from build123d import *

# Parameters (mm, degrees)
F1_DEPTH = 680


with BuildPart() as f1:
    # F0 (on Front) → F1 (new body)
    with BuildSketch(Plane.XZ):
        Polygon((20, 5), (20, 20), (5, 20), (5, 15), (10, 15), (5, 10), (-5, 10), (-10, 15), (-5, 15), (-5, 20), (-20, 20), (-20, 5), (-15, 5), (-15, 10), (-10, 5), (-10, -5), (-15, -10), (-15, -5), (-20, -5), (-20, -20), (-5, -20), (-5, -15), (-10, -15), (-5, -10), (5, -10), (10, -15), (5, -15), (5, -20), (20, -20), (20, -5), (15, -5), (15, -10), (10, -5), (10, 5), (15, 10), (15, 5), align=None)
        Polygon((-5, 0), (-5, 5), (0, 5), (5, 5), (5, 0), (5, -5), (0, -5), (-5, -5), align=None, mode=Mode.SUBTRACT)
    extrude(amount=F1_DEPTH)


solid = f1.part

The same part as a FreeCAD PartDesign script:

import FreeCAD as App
import Part
import Sketcher
from FreeCAD import Vector


def add_polygon(sketch, points):
    """Adds a closed chain of lines whose ends are joined by coincident constraints."""
    first, n = sketch.GeometryCount, len(points)
    for a, b in zip(points, points[1:] + points[:1]):
        sketch.addGeometry(Part.LineSegment(App.Vector(*a, 0), App.Vector(*b, 0)), False)
    for i in range(n):
        sketch.addConstraint(Sketcher.Constraint("Coincident", first + i, 2, first + (i + 1) % n, 1))

doc = App.newDocument("Part")
params = doc.addObject("Spreadsheet::Sheet", "Params")
for row, (alias, value) in enumerate([
    ("sketch1_width", "15 mm"),
    ("sketch1_width2", "10 mm"),
    ("pad1_length", "680 mm"),
], start=1):
    params.set(f"A{row}", alias)
    params.set(f"B{row}", "=" + value)
    params.setAlias(f"B{row}", alias)

body = doc.addObject("PartDesign::Body", "Body")

# Sketch on XZ plane
sketch1 = body.newObject("Sketcher::SketchObject", "Sketch")
sketch1.AttachmentSupport = (doc.getObject("XZ_Plane"), [""])
sketch1.MapMode = "FlatFace"
add_polygon(sketch1, [(20, 5), (20, 20), (5, 20), (5, 15), (10, 15), (5, 10), (-5, 10), (-10, 15), (-5, 15), (-5, 20), (-20, 20), (-20, 5), (-15, 5), (-15, 10), (-10, 5), (-10, -5), (-15, -10), (-15, -5), (-20, -5), (-20, -20), (-5, -20), (-5, -15), (-10, -15), (-5, -10), (5, -10), (10, -15), (5, -15), (5, -20), (20, -20), (20, -5), (15, -5), (15, -10), (10, -5), (10, 5), (15, 10), (15, 5)])  # lines 0-35
add_polygon(sketch1, [(-5, -5), (-5, 5), (5, 5), (5, -5)])  # lines 36-39
sketch1.addConstraint([
    Sketcher.Constraint("Vertical", 0),
    Sketcher.Constraint("Horizontal", 1),
    Sketcher.Constraint("Vertical", 2),
    Sketcher.Constraint("Horizontal", 3),
    Sketcher.Constraint("Horizontal", 5),
    Sketcher.Constraint("Horizontal", 7),
    Sketcher.Constraint("Vertical", 8),
    Sketcher.Constraint("Horizontal", 9),
    Sketcher.Constraint("Vertical", 10),
    Sketcher.Constraint("Horizontal", 11),
    Sketcher.Constraint("Vertical", 12),
    Sketcher.Constraint("Vertical", 14),
    Sketcher.Constraint("Vertical", 16),
    Sketcher.Constraint("Horizontal", 17),
    Sketcher.Constraint("Vertical", 18),
    Sketcher.Constraint("Horizontal", 19),
    Sketcher.Constraint("Vertical", 20),
    Sketcher.Constraint("Horizontal", 21),
    Sketcher.Constraint("Horizontal", 23),
    Sketcher.Constraint("Horizontal", 25),
    Sketcher.Constraint("Vertical", 26),
    Sketcher.Constraint("Horizontal", 27),
    Sketcher.Constraint("Vertical", 28),
    Sketcher.Constraint("Horizontal", 29),
    Sketcher.Constraint("Vertical", 30),
    Sketcher.Constraint("Vertical", 32),
    Sketcher.Constraint("Vertical", 34),
    Sketcher.Constraint("Horizontal", 35),
    Sketcher.Constraint("Vertical", 36),
    Sketcher.Constraint("Horizontal", 37),
    Sketcher.Constraint("Vertical", 38),
    Sketcher.Constraint("Horizontal", 39),
    Sketcher.Constraint("Symmetric", 0, 2, 18, 2, -1, 1),
    Sketcher.Constraint("Symmetric", 2, 2, 20, 2, -1, 1),
    Sketcher.Constraint("Symmetric", 4, 2, 22, 2, -1, 1),
    Sketcher.Constraint("Symmetric", 6, 2, 24, 2, -1, 1),
    Sketcher.Constraint("Symmetric", 8, 2, 26, 2, -1, 1),
    Sketcher.Constraint("Symmetric", 10, 2, 28, 2, -1, 1),
    Sketcher.Constraint("Symmetric", 12, 2, 30, 2, -1, 1),
    Sketcher.Constraint("Symmetric", 13, 2, 31, 2, -1, 1),
    Sketcher.Constraint("Symmetric", 15, 2, 33, 2, -1, 1),
    Sketcher.Constraint("Symmetric", 36, 2, 38, 2, -1, 1),
    Sketcher.Constraint("Symmetric", 3, 2, 6, 2, -2),
    Sketcher.Constraint("Symmetric", 1, 2, 8, 2, -2),
    Sketcher.Constraint("Symmetric", 17, 2, 28, 2, -2),
    Sketcher.Constraint("Symmetric", 15, 2, 30, 2, -2),
    Sketcher.Constraint("Perpendicular", 4, 6),
    Sketcher.Constraint("Parallel", 6, 13),
    Sketcher.Constraint("Perpendicular", 13, 15),
    Sketcher.Constraint("Parallel", 15, 22),
    Sketcher.Constraint("Perpendicular", 22, 24),
    Sketcher.Constraint("Perpendicular", 31, 33),
    Sketcher.Constraint("Horizontal", 5, 2, 12, 2),
    Sketcher.Constraint("Horizontal", 11, 2, 13, 2),
    Sketcher.Constraint("Horizontal", 14, 2, 16, 2),
    Sketcher.Constraint("Horizontal", 32, 2, 34, 2),
    Sketcher.Constraint("Horizontal", 35, 2, 36, 2),
    Sketcher.Constraint("Vertical", 2, 2, 4, 2),
    Sketcher.Constraint("Vertical", 6, 2, 13, 2),
    Sketcher.Constraint("Vertical", 22, 2, 36, 2),
    Sketcher.Constraint("Equal", 7, 11),
    Sketcher.Constraint("Equal", 27, 0),
    Sketcher.Constraint("Equal", 8, 12),
    Sketcher.Constraint("Equal", 39, 14),
    Sketcher.Constraint("DistanceX", 1, 2, 1, 1, 15.0),
    Sketcher.Constraint("DistanceX", 5, 2, 5, 1, 10.0),
])
sketch1.setExpression("Constraints[104]", "Params.sketch1_width")
sketch1.setExpression("Constraints[105]", "Params.sketch1_width2")
pad1 = body.newObject("PartDesign::Pad", "Pad")
pad1.Profile = sketch1
pad1.setExpression("Length", "Params.pad1_length")

doc.recompute()
